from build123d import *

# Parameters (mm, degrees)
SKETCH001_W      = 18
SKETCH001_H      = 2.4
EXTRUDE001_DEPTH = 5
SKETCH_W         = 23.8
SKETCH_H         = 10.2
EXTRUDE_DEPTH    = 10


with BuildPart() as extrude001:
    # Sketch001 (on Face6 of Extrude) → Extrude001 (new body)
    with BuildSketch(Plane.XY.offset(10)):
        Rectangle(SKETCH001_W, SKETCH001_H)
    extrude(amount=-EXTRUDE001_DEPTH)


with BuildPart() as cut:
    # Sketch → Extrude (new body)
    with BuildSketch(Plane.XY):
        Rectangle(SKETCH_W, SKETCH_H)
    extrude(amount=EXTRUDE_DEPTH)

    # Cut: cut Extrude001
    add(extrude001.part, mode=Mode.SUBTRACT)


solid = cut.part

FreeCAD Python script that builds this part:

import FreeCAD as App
import Part
import Sketcher
from FreeCAD import Vector
Q = App.Units.Quantity


def add_polygon(sketch, points):
    """Adds a closed chain of lines whose ends are joined by coincident constraints."""
    first, n = sketch.GeometryCount, len(points)
    for a, b in zip(points, points[1:] + points[:1]):
        sketch.addGeometry(Part.LineSegment(App.Vector(*a, 0), App.Vector(*b, 0)), False)
    for i in range(n):
        sketch.addConstraint(Sketcher.Constraint("Coincident", first + i, 2, first + (i + 1) % n, 1))

doc = App.newDocument("Part")
params = doc.addObject("Spreadsheet::Sheet", "Params")
for row, (alias, value) in enumerate([
    ("sketch1_width", "18 mm"),
    ("sketch1_height", "2.4 mm"),
    ("pad1_length", "5 mm"),
    ("sketch2_width", "23.8 mm"),
    ("sketch2_height", "10.2 mm"),
    ("pad2_length", "10 mm"),
], start=1):
    params.set(f"A{row}", alias)
    params.set(f"B{row}", "=" + value)
    params.setAlias(f"B{row}", alias)

body = doc.addObject("PartDesign::Body", "Body")

# Sketch on XY plane
sketch1 = body.newObject("Sketcher::SketchObject", "Sketch")
sketch1.AttachmentSupport = (doc.getObject("XY_Plane"), [""])
sketch1.MapMode = "FlatFace"
sketch1.AttachmentOffset = App.Placement(Vector(0, 0, 10), App.Rotation())
add_polygon(sketch1, [(-9, 1.2), (-9, -1.2), (9, -1.2), (9, 1.2)])  # lines 0-3
sketch1.addConstraint([
    Sketcher.Constraint("Vertical", 0),
    Sketcher.Constraint("Horizontal", 1),
    Sketcher.Constraint("Vertical", 2),
    Sketcher.Constraint("Horizontal", 3),
    Sketcher.Constraint("Symmetric", 0, 2, 2, 2, -1, 1),
    Sketcher.Constraint("DistanceX", 1, 1, 1, 2, Q("18 mm")),
    Sketcher.Constraint("DistanceY", 0, 2, 0, 1, Q("2.4 mm")),
])
sketch1.setExpression("Constraints[9]", "Params.sketch1_width")
sketch1.setExpression("Constraints[10]", "Params.sketch1_height")
pad1 = body.newObject("PartDesign::Pad", "Pad")
pad1.Profile = sketch1
pad1.setExpression("Length", "Params.pad1_length")
pad1.Reversed = True
body2 = doc.addObject("PartDesign::Body", "Body001")

# Sketch on XY plane
sketch2 = body2.newObject("Sketcher::SketchObject", "Sketch001")
sketch2.AttachmentSupport = (doc.getObject("XY_Plane001"), [""])
sketch2.MapMode = "FlatFace"
add_polygon(sketch2, [(-11.9, 5.1), (-11.9, -5.1), (11.9, -5.1), (11.9, 5.1)])  # lines 0-3
sketch2.addConstraint([
    Sketcher.Constraint("Vertical", 0),
    Sketcher.Constraint("Horizontal", 1),
    Sketcher.Constraint("Vertical", 2),
    Sketcher.Constraint("Horizontal", 3),
    Sketcher.Constraint("Symmetric", 0, 2, 2, 2, -1, 1),
    Sketcher.Constraint("DistanceX", 1, 1, 1, 2, Q("23.8 mm")),
    Sketcher.Constraint("DistanceY", 0, 2, 0, 1, Q("10.2 mm")),
])
sketch2.setExpression("Constraints[9]", "Params.sketch2_width")
sketch2.setExpression("Constraints[10]", "Params.sketch2_height")
pad2 = body2.newObject("PartDesign::Pad", "Pad001")
pad2.Profile = sketch2
pad2.setExpression("Length", "Params.pad2_length")
doc.recompute()

boolean = body2.newObject("PartDesign::Boolean", "Boolean")
boolean.Type = "Cut"
boolean.addObjects([body])

doc.recompute()
